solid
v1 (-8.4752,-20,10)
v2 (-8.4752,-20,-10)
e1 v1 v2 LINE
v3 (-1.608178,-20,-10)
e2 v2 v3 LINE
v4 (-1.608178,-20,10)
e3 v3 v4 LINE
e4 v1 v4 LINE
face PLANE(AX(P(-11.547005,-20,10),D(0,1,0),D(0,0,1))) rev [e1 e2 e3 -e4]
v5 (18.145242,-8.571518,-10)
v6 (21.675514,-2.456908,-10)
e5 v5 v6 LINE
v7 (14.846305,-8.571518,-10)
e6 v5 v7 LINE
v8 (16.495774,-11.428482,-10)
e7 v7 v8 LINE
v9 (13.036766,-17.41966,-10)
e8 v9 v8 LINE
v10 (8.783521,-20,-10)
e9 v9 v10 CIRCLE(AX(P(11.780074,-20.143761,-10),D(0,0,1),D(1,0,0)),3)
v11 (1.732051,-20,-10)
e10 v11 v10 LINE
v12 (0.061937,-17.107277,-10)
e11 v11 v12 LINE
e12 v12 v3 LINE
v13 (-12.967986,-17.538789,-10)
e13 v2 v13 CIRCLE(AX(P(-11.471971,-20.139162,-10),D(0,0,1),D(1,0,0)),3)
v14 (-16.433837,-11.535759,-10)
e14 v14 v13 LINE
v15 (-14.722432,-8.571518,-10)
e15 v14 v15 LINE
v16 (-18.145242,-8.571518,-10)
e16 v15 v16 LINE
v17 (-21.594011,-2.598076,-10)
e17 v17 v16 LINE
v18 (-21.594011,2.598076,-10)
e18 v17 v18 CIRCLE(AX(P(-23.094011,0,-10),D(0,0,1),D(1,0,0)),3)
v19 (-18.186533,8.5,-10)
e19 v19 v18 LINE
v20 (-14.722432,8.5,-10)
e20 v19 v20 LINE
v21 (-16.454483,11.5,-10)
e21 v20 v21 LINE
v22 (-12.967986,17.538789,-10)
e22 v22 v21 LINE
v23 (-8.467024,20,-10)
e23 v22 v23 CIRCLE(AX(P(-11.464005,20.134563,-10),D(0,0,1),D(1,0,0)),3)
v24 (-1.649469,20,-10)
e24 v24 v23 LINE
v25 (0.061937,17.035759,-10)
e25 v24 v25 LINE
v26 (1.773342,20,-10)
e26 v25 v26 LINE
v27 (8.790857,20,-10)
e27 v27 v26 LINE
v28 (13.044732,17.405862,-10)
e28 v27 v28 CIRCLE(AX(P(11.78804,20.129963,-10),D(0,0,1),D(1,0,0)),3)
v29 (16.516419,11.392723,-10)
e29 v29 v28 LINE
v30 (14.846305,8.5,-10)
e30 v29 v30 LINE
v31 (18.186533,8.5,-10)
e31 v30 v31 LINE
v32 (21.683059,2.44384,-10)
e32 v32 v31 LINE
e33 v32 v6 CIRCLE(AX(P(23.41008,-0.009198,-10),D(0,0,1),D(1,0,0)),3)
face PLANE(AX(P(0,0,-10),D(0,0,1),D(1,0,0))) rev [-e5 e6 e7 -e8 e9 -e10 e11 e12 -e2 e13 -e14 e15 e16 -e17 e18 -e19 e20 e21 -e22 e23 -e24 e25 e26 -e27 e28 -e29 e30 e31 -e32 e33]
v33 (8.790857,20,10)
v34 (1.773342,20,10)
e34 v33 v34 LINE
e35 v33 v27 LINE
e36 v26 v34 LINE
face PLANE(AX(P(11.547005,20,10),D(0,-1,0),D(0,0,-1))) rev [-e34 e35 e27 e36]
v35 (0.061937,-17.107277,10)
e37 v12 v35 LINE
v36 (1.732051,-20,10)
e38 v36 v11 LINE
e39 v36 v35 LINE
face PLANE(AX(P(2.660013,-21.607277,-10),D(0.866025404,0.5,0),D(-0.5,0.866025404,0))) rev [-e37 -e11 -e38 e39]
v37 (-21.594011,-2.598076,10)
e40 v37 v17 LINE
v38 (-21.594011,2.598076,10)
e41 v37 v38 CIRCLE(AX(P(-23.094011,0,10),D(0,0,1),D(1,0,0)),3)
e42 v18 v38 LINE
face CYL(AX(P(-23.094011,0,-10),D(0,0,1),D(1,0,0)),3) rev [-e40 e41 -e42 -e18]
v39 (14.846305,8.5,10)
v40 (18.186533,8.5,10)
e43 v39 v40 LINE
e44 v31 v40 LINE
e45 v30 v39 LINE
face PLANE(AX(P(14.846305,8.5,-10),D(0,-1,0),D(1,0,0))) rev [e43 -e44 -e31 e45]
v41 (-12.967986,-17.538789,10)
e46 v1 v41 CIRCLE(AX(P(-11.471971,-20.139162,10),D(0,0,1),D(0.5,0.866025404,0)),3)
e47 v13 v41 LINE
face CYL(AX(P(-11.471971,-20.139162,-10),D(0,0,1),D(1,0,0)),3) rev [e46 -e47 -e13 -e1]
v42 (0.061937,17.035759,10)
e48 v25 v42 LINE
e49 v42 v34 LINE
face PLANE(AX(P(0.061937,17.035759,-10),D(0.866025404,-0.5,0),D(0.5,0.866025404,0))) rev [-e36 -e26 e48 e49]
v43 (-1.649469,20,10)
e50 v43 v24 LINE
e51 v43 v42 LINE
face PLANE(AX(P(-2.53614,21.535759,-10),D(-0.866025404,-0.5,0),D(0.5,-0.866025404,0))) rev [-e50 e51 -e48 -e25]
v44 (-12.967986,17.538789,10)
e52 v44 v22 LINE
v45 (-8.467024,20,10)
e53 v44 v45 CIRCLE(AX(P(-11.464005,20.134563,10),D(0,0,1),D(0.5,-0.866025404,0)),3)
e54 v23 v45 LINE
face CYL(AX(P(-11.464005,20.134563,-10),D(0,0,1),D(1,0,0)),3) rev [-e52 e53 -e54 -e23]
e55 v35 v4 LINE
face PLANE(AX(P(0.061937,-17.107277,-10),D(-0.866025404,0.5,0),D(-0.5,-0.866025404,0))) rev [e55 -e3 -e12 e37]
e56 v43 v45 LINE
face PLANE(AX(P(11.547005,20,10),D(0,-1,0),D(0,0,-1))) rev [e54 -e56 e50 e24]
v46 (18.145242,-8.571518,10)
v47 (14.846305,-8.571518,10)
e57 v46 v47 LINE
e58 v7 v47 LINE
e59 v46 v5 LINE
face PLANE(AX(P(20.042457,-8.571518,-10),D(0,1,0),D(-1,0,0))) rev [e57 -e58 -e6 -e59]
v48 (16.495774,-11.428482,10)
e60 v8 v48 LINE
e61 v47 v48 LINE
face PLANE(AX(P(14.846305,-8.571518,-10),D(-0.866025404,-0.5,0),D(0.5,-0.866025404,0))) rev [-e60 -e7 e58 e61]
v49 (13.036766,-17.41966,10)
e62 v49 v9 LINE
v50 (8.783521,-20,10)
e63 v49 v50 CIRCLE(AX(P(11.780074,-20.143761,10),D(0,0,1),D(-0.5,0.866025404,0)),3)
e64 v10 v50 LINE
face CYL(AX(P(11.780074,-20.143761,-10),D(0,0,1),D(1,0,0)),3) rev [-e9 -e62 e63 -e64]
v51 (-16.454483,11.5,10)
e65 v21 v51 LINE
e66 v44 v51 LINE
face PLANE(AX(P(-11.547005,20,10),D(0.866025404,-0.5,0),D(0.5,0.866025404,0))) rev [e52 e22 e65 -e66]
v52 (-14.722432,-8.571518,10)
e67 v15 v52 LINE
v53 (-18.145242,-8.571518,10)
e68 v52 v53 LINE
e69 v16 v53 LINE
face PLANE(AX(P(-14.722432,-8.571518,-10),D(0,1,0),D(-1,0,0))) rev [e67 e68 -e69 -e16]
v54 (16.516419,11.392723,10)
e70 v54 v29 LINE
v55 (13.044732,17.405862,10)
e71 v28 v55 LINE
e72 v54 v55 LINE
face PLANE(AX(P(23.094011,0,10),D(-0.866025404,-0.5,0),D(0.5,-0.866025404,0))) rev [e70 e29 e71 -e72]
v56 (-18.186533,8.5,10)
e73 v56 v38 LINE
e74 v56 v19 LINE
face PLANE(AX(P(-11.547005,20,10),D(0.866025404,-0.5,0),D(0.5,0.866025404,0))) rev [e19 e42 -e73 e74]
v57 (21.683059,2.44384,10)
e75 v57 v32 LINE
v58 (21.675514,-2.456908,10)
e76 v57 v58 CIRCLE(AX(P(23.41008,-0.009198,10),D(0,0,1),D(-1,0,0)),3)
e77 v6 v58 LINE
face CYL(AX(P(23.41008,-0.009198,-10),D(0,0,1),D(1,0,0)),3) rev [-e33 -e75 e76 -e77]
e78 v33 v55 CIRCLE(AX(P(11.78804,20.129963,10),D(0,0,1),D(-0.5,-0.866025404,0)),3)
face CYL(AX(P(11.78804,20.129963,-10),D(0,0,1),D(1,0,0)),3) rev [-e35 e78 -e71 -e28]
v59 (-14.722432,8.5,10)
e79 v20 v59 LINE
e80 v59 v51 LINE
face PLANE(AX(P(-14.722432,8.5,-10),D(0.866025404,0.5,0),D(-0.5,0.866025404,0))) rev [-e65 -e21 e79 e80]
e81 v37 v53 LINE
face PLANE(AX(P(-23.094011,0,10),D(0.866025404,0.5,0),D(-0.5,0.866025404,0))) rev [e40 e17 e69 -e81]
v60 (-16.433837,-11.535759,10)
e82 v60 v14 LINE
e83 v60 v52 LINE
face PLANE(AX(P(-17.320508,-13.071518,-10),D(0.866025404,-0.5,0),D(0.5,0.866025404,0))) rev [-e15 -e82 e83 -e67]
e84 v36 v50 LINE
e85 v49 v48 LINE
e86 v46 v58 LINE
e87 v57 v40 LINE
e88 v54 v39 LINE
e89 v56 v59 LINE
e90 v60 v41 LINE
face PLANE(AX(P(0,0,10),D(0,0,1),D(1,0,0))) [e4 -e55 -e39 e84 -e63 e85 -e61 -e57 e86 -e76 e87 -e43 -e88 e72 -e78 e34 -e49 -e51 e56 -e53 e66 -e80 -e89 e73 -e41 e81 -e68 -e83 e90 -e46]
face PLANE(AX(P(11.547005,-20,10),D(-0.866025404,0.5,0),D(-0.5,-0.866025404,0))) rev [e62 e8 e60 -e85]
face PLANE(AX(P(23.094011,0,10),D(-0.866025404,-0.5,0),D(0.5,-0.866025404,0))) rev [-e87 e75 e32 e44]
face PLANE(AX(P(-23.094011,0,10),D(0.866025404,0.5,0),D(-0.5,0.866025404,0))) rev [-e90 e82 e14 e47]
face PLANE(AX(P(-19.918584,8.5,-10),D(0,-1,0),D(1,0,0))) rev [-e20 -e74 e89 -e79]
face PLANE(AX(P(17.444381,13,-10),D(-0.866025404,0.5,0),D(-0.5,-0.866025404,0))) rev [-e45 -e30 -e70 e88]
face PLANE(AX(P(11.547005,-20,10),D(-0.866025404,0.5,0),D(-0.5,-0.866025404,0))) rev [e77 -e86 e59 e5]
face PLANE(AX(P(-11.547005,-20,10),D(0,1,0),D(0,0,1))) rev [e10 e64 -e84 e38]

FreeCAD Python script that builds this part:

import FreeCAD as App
import Part
import Sketcher

V = App.Vector
Q = App.Units.Quantity

doc = App.newDocument("Part")
body = doc.addObject("PartDesign::Body", "Body")

# Sketch on XY plane
sketch1 = body.newObject("Sketcher::SketchObject", "Sketch")
sketch1.AttachmentSupport = (doc.getObject("XY_Plane"), [""])
sketch1.MapMode = "FlatFace"
sketch1.addGeometry(Part.LineSegment(V(23, 0, 0), V(12, 20, 0)), False)
sketch1.addGeometry(Part.LineSegment(V(12, 20, 0), V(-12, 20, 0)), False)
sketch1.addGeometry(Part.LineSegment(V(-12, 20, 0), V(-23, 0, 0)), False)
sketch1.addGeometry(Part.LineSegment(V(-23, 0, 0), V(-12, -20, 0)), False)
sketch1.addGeometry(Part.LineSegment(V(-12, -20, 0), V(12, -20, 0)), False)
sketch1.addGeometry(Part.LineSegment(V(12, -20, 0), V(23, 0, 0)), False)
sketch1.addConstraint(Sketcher.Constraint("Coincident", 0, 2, 1, 1))
sketch1.addConstraint(Sketcher.Constraint("Coincident", 1, 2, 2, 1))
sketch1.addConstraint(Sketcher.Constraint("Coincident", 2, 2, 3, 1))
sketch1.addConstraint(Sketcher.Constraint("Coincident", 3, 2, 4, 1))
sketch1.addConstraint(Sketcher.Constraint("Coincident", 4, 2, 5, 1))
sketch1.addConstraint(Sketcher.Constraint("Coincident", 5, 2, 0, 1))
sketch1.addConstraint(Sketcher.Constraint("Horizontal", 1))
sketch1.addConstraint(Sketcher.Constraint("Horizontal", 4))
sketch1.addConstraint(Sketcher.Constraint("Symmetric", 0, 2, 3, 2, -1, 1))
sketch1.addConstraint(Sketcher.Constraint("Symmetric", 2, 2, 5, 2, -1, 1))
sketch1.addConstraint(Sketcher.Constraint("PointOnObject", 2, 2, -1))
sketch1.addConstraint(Sketcher.Constraint("Parallel", 2, 5))
sketch1.addConstraint(Sketcher.Constraint("Vertical", 1, 2, 3, 2))
sketch1.addConstraint(Sketcher.Constraint("Angle", 0, Q("120 deg")))
sketch1.addConstraint(Sketcher.Constraint("DistanceY", -1, 1, 0, 2, Q("20 mm")))
sketch1.addConstraint(Sketcher.Constraint("DistanceX", 1, 2, 1, 1, Q("23.094011 mm")))
pad1 = body.newObject("PartDesign::Pad", "Pad")
pad1.Profile = sketch1
pad1.Length = 20
pad1.Midplane = True

# Sketch on XY plane
sketch2 = body.newObject("Sketcher::SketchObject", "Sketch001")
sketch2.AttachmentSupport = (doc.getObject("XY_Plane"), [""])
sketch2.MapMode = "FlatFace"
sketch2.AttachmentOffset = App.Placement(V(0, 0, 10), App.Rotation())
sketch2.addGeometry(Part.LineSegment(V(-15, 8, 0), V(-17, 13, 0)), False)
sketch2.addGeometry(Part.LineSegment(V(-17, 13, 0), V(-20, 8, 0)), False)
sketch2.addGeometry(Part.LineSegment(V(-20, 8, 0), V(-15, 8, 0)), False)
sketch2.addConstraint(Sketcher.Constraint("Coincident", 0, 2, 1, 1))
sketch2.addConstraint(Sketcher.Constraint("Coincident", 1, 2, 2, 1))
sketch2.addConstraint(Sketcher.Constraint("Coincident", 2, 2, 0, 1))
sketch2.addConstraint(Sketcher.Constraint("Horizontal", 2))
sketch2.addConstraint(Sketcher.Constraint("Equal", 0, 1))
sketch2.addConstraint(Sketcher.Constraint("Angle", 0, Q("120 deg")))
sketch2.addConstraint(Sketcher.Constraint("DistanceY", -1, 1, 0, 2, Q("13 mm")))
sketch2.addConstraint(Sketcher.Constraint("DistanceY", -1, 1, 1, 2, Q("8.5 mm")))
sketch2.addConstraint(Sketcher.Constraint("DistanceX", 0, 2, -1, 1, Q("17.320508 mm")))
pocket1 = body.newObject("PartDesign::Pocket", "Pocket")
pocket1.Profile = sketch2
pocket1.Length = 20
doc.recompute()

datumline = body.newObject("PartDesign::Line", "DatumLine")
datumline.Placement = App.Placement(V(0.061937, -0.035759, 0), App.Rotation(V(0, 0, 1), V(0, 0, 1)))
polarpattern = body.newObject("PartDesign::PolarPattern", "PolarPattern")
polarpattern.Originals = [pocket1]
polarpattern.Axis = (datumline, [""])
polarpattern.Angle = 360
polarpattern.Occurrences = 6
body.Tip = polarpattern

# Sketch on XY plane
sketch3 = body.newObject("Sketcher::SketchObject", "Sketch002")
sketch3.AttachmentSupport = (doc.getObject("XY_Plane"), [""])
sketch3.MapMode = "FlatFace"
sketch3.AttachmentOffset = App.Placement(V(0, 0, 10), App.Rotation())
sketch3.addGeometry(Part.Circle(V(-23.1, 0, 0), V(0, 0, 1), 3), False)
sketch3.addConstraint(Sketcher.Constraint("PointOnObject", 0, 3, -1))
sketch3.addConstraint(Sketcher.Constraint("Diameter", 0, Q("6 mm")))
sketch3.addConstraint(Sketcher.Constraint("DistanceX", 0, 3, -1, 1, Q("23.094011 mm")))
pocket2 = body.newObject("PartDesign::Pocket", "Pocket001")
pocket2.Profile = sketch3
pocket2.Length = 20
doc.recompute()

datumline2 = body.newObject("PartDesign::Line", "DatumLine001")
datumline2.Placement = App.Placement(V(0.158035, -0.004599, 0), App.Rotation(V(0, 0, 1), V(0, 0, 1)))
polarpattern2 = body.newObject("PartDesign::PolarPattern", "PolarPattern001")
polarpattern2.Originals = [pocket2]
polarpattern2.Axis = (datumline2, [""])
polarpattern2.Angle = 360
polarpattern2.Occurrences = 6
body.Tip = polarpattern2

doc.recompute()
